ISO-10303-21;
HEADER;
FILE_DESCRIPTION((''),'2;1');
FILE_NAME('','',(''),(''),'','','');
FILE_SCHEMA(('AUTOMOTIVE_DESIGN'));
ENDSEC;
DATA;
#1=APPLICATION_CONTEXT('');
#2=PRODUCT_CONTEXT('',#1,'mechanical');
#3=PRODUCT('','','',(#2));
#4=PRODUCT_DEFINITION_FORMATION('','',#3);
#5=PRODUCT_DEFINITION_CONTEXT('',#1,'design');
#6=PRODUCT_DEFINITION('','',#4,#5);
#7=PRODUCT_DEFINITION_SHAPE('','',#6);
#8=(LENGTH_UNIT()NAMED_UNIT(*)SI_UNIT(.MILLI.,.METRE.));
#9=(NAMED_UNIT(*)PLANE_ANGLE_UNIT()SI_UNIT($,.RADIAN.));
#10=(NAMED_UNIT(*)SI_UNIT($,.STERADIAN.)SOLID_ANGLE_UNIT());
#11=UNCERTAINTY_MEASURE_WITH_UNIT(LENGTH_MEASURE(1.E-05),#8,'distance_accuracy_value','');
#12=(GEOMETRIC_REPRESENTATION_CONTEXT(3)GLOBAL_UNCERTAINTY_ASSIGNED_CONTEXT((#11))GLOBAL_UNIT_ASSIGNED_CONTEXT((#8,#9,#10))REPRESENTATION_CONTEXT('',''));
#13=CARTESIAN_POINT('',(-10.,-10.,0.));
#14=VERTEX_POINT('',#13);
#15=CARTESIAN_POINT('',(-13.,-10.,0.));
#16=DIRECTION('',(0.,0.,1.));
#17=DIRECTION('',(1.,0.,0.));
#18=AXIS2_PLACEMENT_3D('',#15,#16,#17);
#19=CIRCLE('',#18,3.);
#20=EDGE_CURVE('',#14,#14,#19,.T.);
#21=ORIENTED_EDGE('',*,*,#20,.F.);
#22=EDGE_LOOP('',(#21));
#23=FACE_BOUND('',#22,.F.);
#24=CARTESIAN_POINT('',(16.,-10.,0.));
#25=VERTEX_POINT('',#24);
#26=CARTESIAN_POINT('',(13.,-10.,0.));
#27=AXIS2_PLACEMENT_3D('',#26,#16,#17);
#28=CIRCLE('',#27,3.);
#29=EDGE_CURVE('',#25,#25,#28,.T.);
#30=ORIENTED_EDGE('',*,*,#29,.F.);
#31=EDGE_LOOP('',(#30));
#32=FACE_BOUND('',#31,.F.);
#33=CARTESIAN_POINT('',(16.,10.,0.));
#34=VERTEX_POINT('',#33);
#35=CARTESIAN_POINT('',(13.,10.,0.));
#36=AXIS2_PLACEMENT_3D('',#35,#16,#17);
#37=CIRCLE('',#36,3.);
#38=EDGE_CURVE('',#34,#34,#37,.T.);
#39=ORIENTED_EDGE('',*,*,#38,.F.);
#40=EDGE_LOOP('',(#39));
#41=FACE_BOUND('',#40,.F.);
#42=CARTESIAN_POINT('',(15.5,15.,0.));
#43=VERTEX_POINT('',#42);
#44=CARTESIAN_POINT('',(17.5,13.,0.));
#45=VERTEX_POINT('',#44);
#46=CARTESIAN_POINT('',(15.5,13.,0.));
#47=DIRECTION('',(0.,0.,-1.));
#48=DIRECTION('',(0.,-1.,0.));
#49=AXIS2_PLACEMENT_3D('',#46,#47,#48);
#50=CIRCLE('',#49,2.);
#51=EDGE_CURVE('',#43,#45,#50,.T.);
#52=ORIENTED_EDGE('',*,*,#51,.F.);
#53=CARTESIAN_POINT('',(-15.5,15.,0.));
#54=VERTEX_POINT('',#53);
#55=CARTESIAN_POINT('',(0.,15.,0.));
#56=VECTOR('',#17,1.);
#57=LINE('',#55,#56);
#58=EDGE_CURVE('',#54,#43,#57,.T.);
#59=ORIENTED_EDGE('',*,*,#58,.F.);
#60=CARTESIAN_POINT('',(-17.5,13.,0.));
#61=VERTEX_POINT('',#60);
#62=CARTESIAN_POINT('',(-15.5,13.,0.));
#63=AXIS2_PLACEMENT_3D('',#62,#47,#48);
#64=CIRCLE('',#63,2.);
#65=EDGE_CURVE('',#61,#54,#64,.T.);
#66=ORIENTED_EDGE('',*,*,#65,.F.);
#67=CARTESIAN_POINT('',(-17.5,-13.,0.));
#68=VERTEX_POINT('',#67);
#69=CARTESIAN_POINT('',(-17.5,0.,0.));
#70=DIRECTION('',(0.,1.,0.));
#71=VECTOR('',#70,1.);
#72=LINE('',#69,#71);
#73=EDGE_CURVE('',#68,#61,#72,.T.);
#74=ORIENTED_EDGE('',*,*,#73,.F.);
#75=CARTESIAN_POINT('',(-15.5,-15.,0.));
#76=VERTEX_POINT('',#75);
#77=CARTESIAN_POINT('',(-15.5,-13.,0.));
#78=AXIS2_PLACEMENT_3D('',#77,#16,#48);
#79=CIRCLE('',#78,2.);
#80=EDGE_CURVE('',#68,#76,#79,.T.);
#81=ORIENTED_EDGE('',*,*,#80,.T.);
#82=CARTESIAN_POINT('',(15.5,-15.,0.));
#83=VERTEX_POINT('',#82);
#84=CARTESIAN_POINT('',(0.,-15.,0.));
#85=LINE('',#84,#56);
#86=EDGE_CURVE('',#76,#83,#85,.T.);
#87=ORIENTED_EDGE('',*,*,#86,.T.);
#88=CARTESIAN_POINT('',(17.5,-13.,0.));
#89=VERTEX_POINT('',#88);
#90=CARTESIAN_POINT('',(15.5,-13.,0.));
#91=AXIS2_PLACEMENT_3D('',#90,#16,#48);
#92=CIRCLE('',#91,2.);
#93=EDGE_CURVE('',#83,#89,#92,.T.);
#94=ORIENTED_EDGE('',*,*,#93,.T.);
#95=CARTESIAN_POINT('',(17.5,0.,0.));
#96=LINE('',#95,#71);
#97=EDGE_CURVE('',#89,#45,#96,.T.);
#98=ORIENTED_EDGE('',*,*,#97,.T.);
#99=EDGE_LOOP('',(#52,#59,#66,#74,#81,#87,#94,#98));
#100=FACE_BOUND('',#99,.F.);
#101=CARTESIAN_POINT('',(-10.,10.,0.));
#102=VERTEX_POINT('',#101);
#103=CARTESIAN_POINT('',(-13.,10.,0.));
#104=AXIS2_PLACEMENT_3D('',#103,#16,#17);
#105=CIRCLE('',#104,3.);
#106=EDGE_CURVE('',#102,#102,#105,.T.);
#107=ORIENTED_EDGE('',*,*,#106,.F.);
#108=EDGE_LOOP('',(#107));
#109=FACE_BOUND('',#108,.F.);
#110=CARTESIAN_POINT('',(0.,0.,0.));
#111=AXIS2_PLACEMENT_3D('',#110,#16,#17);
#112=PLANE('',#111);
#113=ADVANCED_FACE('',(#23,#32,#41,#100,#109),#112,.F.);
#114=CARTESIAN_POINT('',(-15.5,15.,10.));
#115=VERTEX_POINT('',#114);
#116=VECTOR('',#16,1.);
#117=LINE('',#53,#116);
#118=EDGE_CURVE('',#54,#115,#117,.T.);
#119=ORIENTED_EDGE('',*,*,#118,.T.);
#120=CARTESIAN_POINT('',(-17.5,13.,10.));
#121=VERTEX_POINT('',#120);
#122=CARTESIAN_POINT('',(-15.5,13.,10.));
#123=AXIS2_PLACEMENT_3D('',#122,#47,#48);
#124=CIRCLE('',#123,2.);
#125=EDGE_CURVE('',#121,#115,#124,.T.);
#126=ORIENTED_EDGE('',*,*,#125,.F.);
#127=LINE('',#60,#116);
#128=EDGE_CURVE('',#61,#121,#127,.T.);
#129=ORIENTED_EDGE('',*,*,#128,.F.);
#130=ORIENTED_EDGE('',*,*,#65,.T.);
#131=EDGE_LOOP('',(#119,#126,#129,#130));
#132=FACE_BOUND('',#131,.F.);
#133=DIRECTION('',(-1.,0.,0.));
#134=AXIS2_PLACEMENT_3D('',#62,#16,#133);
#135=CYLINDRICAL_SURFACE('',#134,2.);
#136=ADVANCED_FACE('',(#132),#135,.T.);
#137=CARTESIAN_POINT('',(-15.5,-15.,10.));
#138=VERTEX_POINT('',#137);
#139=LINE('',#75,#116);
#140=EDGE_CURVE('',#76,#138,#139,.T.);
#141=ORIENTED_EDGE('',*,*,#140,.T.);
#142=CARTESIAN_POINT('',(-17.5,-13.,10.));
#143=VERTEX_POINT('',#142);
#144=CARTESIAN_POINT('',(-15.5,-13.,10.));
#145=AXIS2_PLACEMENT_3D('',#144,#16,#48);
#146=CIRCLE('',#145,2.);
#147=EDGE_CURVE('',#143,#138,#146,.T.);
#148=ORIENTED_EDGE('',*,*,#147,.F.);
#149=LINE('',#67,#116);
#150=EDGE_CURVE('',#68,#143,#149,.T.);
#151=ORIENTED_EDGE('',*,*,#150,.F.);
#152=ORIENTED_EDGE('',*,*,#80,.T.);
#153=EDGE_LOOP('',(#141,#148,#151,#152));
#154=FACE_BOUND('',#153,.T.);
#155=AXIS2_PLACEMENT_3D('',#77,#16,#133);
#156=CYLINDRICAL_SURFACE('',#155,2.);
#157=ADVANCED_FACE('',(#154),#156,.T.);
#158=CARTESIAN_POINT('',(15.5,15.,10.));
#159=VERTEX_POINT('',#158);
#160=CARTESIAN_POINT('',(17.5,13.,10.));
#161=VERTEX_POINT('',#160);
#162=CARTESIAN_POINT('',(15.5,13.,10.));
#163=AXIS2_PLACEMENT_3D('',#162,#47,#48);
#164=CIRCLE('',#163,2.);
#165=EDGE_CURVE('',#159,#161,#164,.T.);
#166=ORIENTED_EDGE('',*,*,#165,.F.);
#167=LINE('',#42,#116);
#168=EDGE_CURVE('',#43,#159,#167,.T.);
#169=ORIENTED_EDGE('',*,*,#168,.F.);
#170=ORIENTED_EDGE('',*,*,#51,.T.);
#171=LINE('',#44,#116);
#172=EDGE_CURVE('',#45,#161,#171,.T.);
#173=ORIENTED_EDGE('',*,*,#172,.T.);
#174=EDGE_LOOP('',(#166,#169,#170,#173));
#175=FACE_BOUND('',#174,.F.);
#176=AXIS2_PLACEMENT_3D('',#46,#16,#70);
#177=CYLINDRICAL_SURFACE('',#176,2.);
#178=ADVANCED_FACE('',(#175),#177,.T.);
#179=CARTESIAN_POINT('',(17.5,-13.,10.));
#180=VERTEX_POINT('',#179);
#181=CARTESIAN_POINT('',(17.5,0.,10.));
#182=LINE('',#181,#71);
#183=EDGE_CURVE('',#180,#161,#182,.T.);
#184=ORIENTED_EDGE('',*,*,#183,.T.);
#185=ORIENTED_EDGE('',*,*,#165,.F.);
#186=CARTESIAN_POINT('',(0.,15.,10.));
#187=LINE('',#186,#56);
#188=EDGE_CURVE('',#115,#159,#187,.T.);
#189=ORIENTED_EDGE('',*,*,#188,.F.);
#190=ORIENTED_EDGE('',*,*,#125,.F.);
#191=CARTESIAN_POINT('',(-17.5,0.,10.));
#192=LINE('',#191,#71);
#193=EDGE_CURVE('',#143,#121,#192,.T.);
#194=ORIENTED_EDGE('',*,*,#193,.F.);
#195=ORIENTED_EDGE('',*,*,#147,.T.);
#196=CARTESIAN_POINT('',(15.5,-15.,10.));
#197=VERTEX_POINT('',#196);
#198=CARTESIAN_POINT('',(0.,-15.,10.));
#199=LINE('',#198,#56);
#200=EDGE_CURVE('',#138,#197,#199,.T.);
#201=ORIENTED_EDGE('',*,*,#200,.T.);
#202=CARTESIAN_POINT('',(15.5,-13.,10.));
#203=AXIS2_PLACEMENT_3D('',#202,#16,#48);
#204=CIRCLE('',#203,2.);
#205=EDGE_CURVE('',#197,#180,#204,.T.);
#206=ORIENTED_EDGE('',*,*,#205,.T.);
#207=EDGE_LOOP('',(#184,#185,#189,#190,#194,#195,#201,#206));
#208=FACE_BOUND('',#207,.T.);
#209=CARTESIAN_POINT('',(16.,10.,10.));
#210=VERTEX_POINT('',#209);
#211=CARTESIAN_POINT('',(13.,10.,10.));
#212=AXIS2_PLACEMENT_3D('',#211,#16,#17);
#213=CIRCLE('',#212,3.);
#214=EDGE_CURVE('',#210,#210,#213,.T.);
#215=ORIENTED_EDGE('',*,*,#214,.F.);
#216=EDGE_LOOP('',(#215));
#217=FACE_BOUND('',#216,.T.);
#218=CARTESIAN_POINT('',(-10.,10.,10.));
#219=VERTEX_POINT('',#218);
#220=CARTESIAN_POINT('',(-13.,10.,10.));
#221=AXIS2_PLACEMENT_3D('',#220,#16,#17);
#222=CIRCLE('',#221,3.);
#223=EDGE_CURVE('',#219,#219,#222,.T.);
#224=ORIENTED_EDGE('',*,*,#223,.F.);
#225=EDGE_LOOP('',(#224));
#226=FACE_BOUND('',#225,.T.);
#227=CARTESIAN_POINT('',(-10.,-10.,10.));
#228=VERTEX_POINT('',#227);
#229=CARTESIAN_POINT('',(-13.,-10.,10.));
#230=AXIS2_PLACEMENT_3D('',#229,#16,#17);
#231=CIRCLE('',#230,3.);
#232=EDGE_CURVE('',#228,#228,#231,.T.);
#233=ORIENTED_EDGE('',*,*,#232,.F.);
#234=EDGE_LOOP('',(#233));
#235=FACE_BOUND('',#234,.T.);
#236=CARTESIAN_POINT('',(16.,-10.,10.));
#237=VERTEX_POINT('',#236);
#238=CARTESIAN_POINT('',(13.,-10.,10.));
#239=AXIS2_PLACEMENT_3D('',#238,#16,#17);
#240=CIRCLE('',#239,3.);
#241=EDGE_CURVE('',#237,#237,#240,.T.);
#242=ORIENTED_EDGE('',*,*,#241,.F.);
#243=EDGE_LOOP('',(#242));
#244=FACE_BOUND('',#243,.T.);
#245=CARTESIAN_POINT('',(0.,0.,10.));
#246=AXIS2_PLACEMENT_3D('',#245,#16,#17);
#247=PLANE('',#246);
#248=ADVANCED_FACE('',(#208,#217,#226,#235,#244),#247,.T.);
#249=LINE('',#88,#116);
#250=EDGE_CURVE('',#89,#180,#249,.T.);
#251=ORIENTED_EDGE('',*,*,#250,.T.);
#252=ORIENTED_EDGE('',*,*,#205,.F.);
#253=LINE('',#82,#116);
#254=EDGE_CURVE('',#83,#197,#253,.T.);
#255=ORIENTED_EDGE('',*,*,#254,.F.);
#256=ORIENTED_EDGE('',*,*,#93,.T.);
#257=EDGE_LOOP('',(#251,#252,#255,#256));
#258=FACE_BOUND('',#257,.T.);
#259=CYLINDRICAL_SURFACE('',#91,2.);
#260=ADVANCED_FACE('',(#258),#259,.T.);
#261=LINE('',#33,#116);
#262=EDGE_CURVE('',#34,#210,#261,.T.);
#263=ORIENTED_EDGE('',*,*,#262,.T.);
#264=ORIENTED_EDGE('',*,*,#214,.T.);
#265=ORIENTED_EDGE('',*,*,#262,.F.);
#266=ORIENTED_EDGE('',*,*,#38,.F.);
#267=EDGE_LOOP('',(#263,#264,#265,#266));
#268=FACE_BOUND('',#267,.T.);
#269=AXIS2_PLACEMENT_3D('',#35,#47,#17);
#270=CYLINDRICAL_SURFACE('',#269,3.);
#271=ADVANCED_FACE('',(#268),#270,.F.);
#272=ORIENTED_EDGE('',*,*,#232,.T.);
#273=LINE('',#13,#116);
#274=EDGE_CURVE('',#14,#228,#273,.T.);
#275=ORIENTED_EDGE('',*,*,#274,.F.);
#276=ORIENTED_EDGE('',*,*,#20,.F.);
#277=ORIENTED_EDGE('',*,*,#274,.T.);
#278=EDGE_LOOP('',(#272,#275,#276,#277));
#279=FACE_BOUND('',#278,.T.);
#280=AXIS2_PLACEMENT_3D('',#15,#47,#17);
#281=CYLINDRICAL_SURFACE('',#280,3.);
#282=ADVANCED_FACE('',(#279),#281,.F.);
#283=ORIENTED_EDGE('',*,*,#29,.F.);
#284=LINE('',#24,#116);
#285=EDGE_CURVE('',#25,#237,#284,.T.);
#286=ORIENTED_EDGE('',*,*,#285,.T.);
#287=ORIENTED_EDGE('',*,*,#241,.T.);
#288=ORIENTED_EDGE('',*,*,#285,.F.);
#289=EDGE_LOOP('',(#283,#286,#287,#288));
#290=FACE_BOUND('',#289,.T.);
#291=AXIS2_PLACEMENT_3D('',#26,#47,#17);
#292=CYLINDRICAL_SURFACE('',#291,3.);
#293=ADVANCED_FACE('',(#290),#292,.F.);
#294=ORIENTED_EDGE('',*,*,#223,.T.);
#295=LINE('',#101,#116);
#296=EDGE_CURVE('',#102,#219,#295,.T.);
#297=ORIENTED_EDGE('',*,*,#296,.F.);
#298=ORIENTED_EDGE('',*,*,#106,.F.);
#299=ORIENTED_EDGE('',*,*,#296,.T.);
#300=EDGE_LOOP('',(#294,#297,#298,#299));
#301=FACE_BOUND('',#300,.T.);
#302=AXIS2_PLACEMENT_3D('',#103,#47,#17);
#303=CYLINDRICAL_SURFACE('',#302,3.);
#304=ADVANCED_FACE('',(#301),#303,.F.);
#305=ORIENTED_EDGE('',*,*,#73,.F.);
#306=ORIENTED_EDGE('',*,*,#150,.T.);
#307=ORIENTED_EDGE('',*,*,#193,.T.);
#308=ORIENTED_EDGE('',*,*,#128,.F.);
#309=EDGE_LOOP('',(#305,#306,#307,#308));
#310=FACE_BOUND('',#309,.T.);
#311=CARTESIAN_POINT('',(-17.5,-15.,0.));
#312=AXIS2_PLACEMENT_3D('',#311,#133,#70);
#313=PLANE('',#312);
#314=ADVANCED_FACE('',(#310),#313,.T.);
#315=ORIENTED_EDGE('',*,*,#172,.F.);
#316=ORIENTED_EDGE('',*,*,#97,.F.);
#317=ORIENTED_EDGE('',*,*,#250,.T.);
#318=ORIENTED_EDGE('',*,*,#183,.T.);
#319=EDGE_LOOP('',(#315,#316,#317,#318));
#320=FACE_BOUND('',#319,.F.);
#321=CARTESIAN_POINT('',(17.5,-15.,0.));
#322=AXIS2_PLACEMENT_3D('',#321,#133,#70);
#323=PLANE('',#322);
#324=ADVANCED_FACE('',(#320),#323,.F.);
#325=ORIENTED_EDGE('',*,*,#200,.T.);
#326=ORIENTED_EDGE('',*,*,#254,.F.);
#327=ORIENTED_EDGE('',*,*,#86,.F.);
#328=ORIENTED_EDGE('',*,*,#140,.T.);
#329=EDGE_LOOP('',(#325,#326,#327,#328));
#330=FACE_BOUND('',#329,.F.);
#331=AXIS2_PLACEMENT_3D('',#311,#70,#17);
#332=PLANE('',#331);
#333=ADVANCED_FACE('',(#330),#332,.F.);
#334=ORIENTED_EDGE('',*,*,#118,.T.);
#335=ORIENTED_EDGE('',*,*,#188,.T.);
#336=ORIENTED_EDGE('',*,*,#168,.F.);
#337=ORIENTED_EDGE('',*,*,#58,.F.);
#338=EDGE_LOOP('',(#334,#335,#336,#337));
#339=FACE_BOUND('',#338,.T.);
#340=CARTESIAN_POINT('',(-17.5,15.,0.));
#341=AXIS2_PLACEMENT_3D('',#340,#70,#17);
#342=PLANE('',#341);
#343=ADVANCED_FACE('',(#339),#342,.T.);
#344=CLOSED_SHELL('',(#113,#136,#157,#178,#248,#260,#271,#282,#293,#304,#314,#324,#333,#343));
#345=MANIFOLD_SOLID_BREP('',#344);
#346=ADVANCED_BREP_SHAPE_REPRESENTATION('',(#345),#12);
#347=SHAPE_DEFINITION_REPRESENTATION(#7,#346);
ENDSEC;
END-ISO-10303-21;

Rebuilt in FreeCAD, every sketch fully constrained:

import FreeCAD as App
import Part
import Sketcher
from FreeCAD import Vector
Q = App.Units.Quantity


def edges_at(feature, points):
    """Names of the edges that pass closest to the given points."""
    edges = feature.Shape.Edges
    near = lambda p: min(range(len(edges)), key=lambda i: edges[i].distToShape(Part.Vertex(*p))[0])
    return sorted({f"Edge{near(p) + 1}" for p in points})


def add_polygon(sketch, points):
    """Adds a closed chain of lines whose ends are joined by coincident constraints."""
    first, n = sketch.GeometryCount, len(points)
    for a, b in zip(points, points[1:] + points[:1]):
        sketch.addGeometry(Part.LineSegment(App.Vector(*a, 0), App.Vector(*b, 0)), False)
    for i in range(n):
        sketch.addConstraint(Sketcher.Constraint("Coincident", first + i, 2, first + (i + 1) % n, 1))

doc = App.newDocument("Part")
body = doc.addObject("PartDesign::Body", "Body")

# Sketch on XY plane
sketch1 = body.newObject("Sketcher::SketchObject", "Sketch")
sketch1.AttachmentSupport = (doc.getObject("XY_Plane"), [""])
sketch1.MapMode = "FlatFace"
add_polygon(sketch1, [(-17.5, 15), (-17.5, -15), (17.5, -15), (17.5, 15)])  # lines 0-3
sketch1.addGeometry(Part.Circle(Vector(-13, -10, 0), Vector(0, 0, 1), 3), False)  # 4
sketch1.addGeometry(Part.Circle(Vector(13, -10, 0), Vector(0, 0, 1), 3), False)  # 5
sketch1.addGeometry(Part.Circle(Vector(-13, 10, 0), Vector(0, 0, 1), 3), False)  # 6
sketch1.addGeometry(Part.Circle(Vector(13, 10, 0), Vector(0, 0, 1), 3), False)  # 7
sketch1.addConstraint([
    Sketcher.Constraint("Vertical", 0),
    Sketcher.Constraint("Horizontal", 1),
    Sketcher.Constraint("Vertical", 2),
    Sketcher.Constraint("Horizontal", 3),
    Sketcher.Constraint("Equal", 4, 5),
    Sketcher.Constraint("Equal", 5, 6),
    Sketcher.Constraint("Equal", 6, 7),
    Sketcher.Constraint("Symmetric", 5, 3, 6, 3, -1, 1),
    Sketcher.Constraint("Symmetric", 4, 3, 7, 3, -1, 1),
    Sketcher.Constraint("Symmetric", 0, 2, 2, 2, -1, 1),
    Sketcher.Constraint("Symmetric", 4, 3, 5, 3, -2),
    Sketcher.Constraint("Diameter", 4, Q("6 mm")),
    Sketcher.Constraint("DistanceX", 1, 1, 1, 2, Q("35 mm")),
    Sketcher.Constraint("DistanceY", 0, 2, 0, 1, Q("30 mm")),
    Sketcher.Constraint("DistanceX", 4, 3, -1, 1, Q("13 mm")),
    Sketcher.Constraint("DistanceY", 4, 3, -1, 1, Q("10 mm")),
])
pad1 = body.newObject("PartDesign::Pad", "Pad")
pad1.Profile = sketch1
pad1.Length = 10
doc.recompute()

fillet = body.newObject("PartDesign::Fillet", "Fillet")
fillet.Base = (pad1, edges_at(pad1, [
    (-17.5, -15, 5),
    (17.5, -15, 5),
    (17.5, 15, 5),
    (-17.5, 15, 5),
]))
fillet.Radius = 2

doc.recompute()
